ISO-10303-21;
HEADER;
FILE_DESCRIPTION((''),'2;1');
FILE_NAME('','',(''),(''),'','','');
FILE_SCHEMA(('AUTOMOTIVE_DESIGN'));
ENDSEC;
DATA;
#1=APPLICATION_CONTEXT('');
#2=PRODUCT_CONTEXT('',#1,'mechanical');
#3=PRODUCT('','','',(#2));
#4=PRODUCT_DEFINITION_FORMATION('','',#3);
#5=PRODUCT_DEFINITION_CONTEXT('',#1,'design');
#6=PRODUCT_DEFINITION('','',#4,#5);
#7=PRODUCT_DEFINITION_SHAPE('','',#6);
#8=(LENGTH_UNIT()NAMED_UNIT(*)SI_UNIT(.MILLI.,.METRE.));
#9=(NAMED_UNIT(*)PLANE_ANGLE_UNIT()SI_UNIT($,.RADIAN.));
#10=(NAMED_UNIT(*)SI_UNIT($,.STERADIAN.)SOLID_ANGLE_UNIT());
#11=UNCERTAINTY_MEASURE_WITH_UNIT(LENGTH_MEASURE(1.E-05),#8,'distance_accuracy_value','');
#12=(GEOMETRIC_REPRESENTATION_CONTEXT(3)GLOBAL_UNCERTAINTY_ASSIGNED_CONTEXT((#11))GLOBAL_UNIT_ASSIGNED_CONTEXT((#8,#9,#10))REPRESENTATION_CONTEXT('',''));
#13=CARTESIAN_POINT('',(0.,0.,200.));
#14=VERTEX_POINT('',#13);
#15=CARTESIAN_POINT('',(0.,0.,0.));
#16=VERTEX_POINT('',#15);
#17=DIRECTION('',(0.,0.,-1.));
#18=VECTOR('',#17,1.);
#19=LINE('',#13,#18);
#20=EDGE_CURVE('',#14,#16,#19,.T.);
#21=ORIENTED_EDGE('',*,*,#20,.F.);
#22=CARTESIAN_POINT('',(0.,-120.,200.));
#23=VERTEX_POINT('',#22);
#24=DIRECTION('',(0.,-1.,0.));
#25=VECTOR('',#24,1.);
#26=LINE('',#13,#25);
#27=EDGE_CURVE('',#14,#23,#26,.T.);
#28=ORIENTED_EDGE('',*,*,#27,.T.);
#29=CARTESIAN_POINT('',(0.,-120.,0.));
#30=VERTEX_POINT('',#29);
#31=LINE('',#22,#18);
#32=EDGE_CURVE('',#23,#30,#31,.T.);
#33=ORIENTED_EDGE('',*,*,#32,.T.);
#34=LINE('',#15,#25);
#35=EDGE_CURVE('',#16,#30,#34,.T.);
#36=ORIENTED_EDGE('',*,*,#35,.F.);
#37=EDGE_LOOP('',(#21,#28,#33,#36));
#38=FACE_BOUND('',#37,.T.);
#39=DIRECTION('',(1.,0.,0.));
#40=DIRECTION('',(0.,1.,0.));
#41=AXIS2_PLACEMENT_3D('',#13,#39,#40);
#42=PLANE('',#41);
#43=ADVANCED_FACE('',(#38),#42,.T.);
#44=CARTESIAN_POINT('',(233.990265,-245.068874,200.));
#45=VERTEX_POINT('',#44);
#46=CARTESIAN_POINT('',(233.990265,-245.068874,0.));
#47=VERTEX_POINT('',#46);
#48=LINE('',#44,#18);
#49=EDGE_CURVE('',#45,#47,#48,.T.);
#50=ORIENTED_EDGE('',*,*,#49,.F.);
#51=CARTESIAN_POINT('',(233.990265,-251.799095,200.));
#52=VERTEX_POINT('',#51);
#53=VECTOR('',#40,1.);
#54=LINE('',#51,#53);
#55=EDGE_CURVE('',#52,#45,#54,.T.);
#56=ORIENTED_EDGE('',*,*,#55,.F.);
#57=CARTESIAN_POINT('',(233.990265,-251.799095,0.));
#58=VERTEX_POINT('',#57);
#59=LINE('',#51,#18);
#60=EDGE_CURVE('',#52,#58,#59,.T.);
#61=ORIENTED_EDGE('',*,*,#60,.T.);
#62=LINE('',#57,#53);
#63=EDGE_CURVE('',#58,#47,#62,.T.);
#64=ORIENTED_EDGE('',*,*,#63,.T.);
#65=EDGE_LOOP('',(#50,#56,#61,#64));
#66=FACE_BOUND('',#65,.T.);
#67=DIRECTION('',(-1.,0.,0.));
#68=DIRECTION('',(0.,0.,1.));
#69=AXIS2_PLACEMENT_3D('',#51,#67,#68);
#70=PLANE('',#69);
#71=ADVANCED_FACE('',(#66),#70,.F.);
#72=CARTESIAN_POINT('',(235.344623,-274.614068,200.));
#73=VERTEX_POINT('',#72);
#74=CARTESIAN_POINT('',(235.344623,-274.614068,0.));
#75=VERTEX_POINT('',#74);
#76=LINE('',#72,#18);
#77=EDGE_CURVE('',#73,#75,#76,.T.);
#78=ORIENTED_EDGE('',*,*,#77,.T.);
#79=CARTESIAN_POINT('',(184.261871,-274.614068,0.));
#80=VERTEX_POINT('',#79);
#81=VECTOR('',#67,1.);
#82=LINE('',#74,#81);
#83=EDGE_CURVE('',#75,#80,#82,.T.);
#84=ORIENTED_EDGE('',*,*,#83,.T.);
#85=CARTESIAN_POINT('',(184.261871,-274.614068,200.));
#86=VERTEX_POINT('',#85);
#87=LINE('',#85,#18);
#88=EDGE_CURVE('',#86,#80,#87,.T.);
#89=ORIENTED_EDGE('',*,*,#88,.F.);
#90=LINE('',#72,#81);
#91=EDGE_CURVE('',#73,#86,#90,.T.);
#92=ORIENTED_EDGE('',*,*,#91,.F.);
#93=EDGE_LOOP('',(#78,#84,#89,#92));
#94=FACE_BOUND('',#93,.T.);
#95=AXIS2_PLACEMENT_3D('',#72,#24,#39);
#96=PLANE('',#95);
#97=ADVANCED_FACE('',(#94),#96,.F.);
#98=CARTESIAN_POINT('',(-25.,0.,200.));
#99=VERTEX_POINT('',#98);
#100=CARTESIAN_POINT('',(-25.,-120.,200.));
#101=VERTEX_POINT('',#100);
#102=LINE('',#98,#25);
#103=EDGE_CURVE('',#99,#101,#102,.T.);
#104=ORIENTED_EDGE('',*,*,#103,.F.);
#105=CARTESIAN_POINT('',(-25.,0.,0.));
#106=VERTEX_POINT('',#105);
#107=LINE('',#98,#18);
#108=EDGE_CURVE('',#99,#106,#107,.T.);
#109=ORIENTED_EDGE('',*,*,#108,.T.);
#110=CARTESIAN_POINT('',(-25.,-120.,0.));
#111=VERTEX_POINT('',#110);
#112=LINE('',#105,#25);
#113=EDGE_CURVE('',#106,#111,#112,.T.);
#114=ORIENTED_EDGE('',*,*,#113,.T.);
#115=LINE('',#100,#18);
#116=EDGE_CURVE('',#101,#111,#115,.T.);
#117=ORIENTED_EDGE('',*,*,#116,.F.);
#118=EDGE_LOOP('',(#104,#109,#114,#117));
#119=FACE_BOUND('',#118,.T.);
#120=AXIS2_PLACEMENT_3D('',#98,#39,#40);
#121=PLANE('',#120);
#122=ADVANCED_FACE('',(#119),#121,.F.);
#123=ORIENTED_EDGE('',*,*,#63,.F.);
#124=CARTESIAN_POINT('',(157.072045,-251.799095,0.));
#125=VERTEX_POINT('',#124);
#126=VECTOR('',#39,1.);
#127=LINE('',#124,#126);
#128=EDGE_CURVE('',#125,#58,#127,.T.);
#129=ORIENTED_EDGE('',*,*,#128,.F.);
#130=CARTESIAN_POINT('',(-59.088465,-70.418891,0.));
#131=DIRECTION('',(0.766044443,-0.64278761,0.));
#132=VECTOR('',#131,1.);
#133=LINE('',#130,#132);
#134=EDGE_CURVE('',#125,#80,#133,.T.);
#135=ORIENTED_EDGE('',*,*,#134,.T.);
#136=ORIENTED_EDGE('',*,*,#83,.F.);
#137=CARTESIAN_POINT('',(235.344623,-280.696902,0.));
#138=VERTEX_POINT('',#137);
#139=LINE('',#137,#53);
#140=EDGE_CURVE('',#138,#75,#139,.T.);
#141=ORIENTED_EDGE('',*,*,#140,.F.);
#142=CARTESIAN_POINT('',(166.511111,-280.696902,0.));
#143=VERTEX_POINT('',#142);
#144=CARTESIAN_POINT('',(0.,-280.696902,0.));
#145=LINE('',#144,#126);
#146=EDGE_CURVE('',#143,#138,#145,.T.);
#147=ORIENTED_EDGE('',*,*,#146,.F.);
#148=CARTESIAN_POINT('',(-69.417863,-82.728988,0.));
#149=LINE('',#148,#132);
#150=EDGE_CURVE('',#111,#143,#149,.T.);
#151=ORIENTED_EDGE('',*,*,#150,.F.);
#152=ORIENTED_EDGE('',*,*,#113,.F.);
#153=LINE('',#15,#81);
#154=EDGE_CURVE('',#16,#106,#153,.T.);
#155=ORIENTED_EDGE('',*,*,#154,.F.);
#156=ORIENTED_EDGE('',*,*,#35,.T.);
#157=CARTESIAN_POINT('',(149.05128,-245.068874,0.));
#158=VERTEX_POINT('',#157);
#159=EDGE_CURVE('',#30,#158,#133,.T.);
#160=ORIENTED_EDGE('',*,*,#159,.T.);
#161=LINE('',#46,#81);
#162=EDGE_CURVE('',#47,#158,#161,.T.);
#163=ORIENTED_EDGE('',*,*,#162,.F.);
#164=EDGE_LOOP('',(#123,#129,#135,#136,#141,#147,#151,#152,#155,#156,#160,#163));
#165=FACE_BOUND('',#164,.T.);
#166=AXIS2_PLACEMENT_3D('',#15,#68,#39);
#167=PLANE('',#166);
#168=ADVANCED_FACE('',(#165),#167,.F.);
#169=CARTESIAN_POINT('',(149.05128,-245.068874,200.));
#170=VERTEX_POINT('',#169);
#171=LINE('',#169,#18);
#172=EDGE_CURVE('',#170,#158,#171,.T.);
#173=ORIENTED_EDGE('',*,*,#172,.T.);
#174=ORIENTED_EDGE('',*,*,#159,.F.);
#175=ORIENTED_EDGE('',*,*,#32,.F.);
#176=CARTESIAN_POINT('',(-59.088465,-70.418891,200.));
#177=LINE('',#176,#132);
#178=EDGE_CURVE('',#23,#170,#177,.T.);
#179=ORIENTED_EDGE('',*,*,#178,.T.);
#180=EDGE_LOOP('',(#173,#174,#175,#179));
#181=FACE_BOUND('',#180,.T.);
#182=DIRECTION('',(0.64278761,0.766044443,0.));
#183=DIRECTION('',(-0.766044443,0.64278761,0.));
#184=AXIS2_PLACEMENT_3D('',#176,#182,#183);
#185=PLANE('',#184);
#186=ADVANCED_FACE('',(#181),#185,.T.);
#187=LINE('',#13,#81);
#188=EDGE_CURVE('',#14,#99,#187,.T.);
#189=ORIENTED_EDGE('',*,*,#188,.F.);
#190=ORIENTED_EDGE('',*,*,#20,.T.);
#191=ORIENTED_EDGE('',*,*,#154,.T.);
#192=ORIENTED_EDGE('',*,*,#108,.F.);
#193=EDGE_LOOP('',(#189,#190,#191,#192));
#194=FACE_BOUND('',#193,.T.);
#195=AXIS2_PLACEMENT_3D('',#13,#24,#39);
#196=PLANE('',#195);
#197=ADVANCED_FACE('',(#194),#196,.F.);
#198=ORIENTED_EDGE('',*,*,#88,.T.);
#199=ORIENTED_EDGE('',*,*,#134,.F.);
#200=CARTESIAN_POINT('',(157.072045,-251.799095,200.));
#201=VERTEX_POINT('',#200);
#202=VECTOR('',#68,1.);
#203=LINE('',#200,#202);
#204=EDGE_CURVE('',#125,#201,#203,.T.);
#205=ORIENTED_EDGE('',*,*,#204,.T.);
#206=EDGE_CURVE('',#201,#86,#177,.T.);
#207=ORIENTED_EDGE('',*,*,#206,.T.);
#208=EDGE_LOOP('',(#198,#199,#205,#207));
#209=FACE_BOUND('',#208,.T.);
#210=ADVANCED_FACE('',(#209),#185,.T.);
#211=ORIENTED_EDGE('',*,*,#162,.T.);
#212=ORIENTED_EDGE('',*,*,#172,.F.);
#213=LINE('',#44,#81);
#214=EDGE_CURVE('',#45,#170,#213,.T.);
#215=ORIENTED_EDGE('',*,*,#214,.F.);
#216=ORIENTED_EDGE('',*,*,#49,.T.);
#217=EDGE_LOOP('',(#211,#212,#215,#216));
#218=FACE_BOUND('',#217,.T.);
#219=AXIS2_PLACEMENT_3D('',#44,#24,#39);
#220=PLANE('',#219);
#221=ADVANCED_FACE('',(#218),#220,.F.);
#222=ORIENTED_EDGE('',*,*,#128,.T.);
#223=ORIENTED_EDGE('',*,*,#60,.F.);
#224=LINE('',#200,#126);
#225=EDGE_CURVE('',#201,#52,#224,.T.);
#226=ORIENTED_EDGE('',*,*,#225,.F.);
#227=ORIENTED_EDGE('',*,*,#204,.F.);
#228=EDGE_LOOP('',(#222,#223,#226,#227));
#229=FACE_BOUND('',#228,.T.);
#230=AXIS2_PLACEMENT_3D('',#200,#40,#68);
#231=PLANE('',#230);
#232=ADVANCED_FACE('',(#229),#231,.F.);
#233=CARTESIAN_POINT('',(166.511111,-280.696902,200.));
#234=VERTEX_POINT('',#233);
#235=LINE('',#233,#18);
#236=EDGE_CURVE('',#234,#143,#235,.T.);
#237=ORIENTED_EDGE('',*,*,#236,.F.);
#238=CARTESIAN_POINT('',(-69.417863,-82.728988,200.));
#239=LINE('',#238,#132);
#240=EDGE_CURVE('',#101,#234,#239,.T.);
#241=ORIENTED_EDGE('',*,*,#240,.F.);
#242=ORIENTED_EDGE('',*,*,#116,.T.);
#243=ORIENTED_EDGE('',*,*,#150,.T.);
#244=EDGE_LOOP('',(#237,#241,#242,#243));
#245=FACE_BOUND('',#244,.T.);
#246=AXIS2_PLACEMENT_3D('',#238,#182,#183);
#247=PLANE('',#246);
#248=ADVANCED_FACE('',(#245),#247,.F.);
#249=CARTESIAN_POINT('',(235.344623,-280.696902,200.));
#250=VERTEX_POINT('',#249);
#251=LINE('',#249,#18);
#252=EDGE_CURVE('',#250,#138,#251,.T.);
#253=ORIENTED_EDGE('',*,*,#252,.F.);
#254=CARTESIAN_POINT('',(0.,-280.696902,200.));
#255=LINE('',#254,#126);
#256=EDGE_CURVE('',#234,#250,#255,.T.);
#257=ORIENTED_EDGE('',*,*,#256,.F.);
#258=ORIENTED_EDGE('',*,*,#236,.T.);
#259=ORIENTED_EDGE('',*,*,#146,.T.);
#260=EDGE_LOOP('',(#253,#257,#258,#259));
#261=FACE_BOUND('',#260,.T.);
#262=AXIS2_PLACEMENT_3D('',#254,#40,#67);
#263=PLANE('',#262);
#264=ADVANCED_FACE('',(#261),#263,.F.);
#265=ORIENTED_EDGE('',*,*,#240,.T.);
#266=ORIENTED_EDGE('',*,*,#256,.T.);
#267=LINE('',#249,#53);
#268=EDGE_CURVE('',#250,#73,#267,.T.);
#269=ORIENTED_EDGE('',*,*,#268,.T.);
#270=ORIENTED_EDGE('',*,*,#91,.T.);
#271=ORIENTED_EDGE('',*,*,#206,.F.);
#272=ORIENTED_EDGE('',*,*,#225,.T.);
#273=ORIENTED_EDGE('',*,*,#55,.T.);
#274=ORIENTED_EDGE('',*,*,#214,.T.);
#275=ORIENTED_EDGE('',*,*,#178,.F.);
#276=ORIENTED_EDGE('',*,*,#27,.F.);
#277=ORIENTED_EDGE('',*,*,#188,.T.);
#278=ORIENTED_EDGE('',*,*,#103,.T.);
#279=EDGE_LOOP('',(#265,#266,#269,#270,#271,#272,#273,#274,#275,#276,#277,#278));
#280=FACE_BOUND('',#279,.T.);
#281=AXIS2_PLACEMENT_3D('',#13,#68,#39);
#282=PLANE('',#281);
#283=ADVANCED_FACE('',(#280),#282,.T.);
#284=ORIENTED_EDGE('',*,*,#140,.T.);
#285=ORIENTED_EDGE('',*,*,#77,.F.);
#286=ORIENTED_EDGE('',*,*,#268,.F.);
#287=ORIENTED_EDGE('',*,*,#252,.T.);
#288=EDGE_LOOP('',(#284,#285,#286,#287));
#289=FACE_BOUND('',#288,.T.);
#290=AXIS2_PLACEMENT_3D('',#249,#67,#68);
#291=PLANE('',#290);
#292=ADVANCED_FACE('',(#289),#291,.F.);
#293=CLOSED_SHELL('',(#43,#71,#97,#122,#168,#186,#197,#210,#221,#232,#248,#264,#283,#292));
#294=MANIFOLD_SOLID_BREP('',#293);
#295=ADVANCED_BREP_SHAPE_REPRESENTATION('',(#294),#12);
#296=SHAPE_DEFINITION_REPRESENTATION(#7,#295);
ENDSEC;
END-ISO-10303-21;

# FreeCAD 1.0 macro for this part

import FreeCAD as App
import Part
import Sketcher

V = App.Vector
Q = App.Units.Quantity

doc = App.newDocument("Part")
params = doc.addObject("Spreadsheet::Sheet", "Params")
for row, (alias, value) in enumerate([
    ("sketch1_width", "25 mm"),
    ("sketch1_height", "120 mm"),
    ("sketch1_length", "250 mm"),
    ("pad1_length", "200 mm"),
], start=1):
    params.set(f"A{row}", alias)
    params.set(f"B{row}", "=" + value)
    params.setAlias(f"B{row}", alias)

body = doc.addObject("PartDesign::Body", "Body")

sketch1 = body.newObject("Sketcher::SketchObject", "Sketch")
sketch1.AttachmentSupport = (doc.getObject("XY_Plane"), [""])
sketch1.MapMode = "FlatFace"
sketch1.addGeometry([
    Part.LineSegment(V(-25, 0, 0), V(-25, -120, 0)),
    Part.LineSegment(V(-25, -120, 0), V(166.511111, -280.696902, 0)),
    Part.LineSegment(V(166.511111, -280.696902, 0), V(235.344623, -280.696902, 0)),
    Part.LineSegment(V(235.344623, -280.696902, 0), V(235.344623, -274.614068, 0)),
    Part.LineSegment(V(235.344623, -274.614068, 0), V(184.261871, -274.614068, 0)),
    Part.LineSegment(V(184.261871, -274.614068, 0), V(157.072045, -251.799095, 0)),
    Part.LineSegment(V(157.072045, -251.799095, 0), V(233.990265, -251.799095, 0)),
    Part.LineSegment(V(233.990265, -251.799095, 0), V(233.990265, -245.068874, 0)),
    Part.LineSegment(V(233.990265, -245.068874, 0), V(149.05128, -245.068874, 0)),
    Part.LineSegment(V(149.05128, -245.068874, 0), V(0, -120, 0)),
    Part.LineSegment(V(0, -120, 0), V(0, 0, 0)),
    Part.LineSegment(V(0, 0, 0), V(-25, 0, 0)),
], False)
sketch1.addConstraint([
    Sketcher.Constraint("Coincident", 0, 2, 1, 1),
    Sketcher.Constraint("Coincident", 1, 2, 2, 1),
    Sketcher.Constraint("Coincident", 2, 2, 3, 1),
    Sketcher.Constraint("Coincident", 3, 2, 4, 1),
    Sketcher.Constraint("Coincident", 4, 2, 5, 1),
    Sketcher.Constraint("Coincident", 5, 2, 6, 1),
    Sketcher.Constraint("Coincident", 6, 2, 7, 1),
    Sketcher.Constraint("Coincident", 7, 2, 8, 1),
    Sketcher.Constraint("Coincident", 8, 2, 9, 1),
    Sketcher.Constraint("Coincident", 9, 2, 10, 1),
    Sketcher.Constraint("Coincident", 10, 2, 11, 1),
    Sketcher.Constraint("Coincident", 11, 2, 0, 1),
    Sketcher.Constraint("Vertical", 0),
    Sketcher.Constraint("Horizontal", 2),
    Sketcher.Constraint("Vertical", 3),
    Sketcher.Constraint("Horizontal", 4),
    Sketcher.Constraint("Horizontal", 6),
    Sketcher.Constraint("Vertical", 7),
    Sketcher.Constraint("Horizontal", 8),
    Sketcher.Constraint("Vertical", 10),
    Sketcher.Constraint("Horizontal", 11),
    Sketcher.Constraint("Coincident", 10, 2, -1, 1),
    Sketcher.Constraint("Parallel", 1, 5),
    Sketcher.Constraint("Parallel", 5, 9),
    Sketcher.Constraint("Horizontal", 0, 2, 9, 2),
    Sketcher.Constraint("DistanceX", 11, 2, 11, 1, Q("25 mm")),
    Sketcher.Constraint("DistanceY", 0, 2, 0, 1, Q("120 mm")),
    Sketcher.Constraint("Angle", 1, Q("-40 deg")),
    Sketcher.Constraint("Distance", 1, Q("250 mm")),
    Sketcher.Constraint("DistanceX", 2, 1, 2, 2, Q("68.833512 mm")),
    Sketcher.Constraint("DistanceX", 4, 2, 4, 1, Q("51.082751 mm")),
    Sketcher.Constraint("DistanceX", 6, 1, 6, 2, Q("76.91822 mm")),
    Sketcher.Constraint("DistanceY", 7, 1, 7, 2, Q("6.730221 mm")),
    Sketcher.Constraint("DistanceX", 8, 2, 8, 1, Q("84.938985 mm")),
    Sketcher.Constraint("DistanceX", -1, 1, 8, 2, Q("149.05128 mm")),
])
sketch1.setExpression("Constraints[25]", "Params.sketch1_width")
sketch1.setExpression("Constraints[26]", "Params.sketch1_height")
sketch1.setExpression("Constraints[28]", "Params.sketch1_length")
pad1 = body.newObject("PartDesign::Pad", "Pad")
pad1.Profile = sketch1
pad1.setExpression("Length", "Params.pad1_length")

doc.recompute()
